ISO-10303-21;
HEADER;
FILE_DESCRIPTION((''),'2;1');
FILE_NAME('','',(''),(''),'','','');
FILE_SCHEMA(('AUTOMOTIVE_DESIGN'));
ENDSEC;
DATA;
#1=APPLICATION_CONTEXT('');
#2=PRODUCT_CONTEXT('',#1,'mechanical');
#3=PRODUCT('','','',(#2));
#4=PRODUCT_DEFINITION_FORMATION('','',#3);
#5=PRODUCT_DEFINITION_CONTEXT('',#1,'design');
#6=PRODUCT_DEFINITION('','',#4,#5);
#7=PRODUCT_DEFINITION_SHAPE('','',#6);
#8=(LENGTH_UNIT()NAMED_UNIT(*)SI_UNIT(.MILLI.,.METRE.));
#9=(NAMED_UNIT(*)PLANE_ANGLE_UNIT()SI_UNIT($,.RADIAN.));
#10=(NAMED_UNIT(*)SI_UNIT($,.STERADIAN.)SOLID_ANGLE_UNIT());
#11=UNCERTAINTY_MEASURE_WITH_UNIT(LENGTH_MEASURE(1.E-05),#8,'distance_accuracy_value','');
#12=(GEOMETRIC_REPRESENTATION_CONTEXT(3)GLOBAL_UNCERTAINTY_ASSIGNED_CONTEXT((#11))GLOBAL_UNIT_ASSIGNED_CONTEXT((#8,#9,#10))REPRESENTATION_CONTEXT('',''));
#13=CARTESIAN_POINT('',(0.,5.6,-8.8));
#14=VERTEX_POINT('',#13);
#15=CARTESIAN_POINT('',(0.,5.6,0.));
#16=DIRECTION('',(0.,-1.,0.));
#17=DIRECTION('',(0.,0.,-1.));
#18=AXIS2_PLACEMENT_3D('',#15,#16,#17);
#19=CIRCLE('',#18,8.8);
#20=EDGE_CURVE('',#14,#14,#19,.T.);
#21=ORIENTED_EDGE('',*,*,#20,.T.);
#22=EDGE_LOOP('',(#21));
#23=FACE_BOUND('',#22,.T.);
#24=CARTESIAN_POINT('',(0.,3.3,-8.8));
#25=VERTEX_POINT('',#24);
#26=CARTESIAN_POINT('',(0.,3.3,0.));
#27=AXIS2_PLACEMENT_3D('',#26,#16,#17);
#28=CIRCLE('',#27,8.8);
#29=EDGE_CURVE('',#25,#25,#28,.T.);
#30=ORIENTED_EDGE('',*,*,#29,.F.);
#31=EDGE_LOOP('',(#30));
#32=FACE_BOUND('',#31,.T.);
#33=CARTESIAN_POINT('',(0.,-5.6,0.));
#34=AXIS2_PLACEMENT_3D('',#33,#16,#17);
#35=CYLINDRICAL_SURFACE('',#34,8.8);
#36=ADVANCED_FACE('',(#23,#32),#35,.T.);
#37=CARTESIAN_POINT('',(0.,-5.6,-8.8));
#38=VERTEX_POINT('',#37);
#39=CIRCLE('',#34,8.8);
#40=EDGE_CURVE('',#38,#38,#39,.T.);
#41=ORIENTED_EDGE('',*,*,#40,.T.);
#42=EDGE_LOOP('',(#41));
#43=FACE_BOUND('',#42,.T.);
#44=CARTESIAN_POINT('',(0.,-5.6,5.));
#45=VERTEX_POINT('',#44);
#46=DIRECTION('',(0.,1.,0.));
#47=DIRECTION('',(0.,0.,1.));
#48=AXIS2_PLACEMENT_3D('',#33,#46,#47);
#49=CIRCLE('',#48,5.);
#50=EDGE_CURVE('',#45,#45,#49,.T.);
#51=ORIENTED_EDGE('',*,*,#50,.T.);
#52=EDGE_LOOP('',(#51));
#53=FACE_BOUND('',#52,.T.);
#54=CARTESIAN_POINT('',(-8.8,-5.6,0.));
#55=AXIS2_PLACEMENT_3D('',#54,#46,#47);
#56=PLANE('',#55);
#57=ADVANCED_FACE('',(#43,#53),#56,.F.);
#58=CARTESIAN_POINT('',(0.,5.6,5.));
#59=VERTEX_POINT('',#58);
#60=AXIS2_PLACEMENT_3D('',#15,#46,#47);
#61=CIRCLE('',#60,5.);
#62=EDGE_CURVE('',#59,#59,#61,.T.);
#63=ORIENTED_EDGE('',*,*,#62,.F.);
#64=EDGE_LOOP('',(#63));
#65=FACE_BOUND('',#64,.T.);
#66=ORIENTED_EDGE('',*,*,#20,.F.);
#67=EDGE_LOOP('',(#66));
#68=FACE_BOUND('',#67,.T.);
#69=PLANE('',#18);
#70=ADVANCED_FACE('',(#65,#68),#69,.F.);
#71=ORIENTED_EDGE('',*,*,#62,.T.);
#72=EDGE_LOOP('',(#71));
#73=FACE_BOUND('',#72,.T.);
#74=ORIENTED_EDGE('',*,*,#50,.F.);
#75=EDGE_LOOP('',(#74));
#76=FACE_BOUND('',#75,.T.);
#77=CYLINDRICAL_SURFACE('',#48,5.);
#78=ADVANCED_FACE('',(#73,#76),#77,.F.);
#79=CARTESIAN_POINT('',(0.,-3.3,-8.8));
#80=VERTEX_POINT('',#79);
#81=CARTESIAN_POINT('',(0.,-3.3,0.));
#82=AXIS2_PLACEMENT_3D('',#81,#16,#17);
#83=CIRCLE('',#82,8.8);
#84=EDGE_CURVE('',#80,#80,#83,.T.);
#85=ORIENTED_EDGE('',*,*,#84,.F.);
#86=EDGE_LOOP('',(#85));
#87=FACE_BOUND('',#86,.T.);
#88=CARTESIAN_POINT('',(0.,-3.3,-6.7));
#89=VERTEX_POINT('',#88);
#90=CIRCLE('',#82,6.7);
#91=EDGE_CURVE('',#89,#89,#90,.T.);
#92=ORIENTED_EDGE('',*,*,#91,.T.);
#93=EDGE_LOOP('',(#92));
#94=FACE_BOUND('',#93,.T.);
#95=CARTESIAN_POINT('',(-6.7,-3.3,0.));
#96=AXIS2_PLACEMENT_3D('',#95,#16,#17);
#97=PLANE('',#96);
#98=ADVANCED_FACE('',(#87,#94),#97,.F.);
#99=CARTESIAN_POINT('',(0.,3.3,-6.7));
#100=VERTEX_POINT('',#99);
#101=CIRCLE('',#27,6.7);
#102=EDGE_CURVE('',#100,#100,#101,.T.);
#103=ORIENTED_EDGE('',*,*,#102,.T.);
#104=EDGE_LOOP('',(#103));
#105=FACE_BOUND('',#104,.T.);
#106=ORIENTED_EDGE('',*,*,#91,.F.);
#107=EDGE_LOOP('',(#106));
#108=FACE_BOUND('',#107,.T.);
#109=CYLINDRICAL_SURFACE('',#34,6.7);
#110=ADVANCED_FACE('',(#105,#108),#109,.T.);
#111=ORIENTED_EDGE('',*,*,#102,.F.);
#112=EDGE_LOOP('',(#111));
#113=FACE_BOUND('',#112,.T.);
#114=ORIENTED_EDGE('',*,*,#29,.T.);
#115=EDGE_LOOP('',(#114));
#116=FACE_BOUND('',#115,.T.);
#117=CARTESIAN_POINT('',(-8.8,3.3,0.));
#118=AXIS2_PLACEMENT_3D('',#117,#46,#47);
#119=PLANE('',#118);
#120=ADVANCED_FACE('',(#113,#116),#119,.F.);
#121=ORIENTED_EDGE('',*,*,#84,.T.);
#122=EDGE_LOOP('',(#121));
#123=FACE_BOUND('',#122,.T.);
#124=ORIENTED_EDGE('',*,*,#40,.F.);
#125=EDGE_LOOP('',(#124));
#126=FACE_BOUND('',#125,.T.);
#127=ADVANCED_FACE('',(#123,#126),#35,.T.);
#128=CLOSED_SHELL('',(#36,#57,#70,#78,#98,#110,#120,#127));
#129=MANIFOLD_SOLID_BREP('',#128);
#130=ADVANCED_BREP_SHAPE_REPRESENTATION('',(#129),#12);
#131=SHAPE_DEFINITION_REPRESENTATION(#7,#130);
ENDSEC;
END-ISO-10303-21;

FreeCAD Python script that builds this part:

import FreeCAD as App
import Part
import Sketcher
from FreeCAD import Vector


def add_polygon(sketch, points):
    """Adds a closed chain of lines whose ends are joined by coincident constraints."""
    first, n = sketch.GeometryCount, len(points)
    for a, b in zip(points, points[1:] + points[:1]):
        sketch.addGeometry(Part.LineSegment(App.Vector(*a, 0), App.Vector(*b, 0)), False)
    for i in range(n):
        sketch.addConstraint(Sketcher.Constraint("Coincident", first + i, 2, first + (i + 1) % n, 1))

doc = App.newDocument("Part")
body = doc.addObject("PartDesign::Body", "Body")

sketch1 = body.newObject("Sketcher::SketchObject", "Sketch")
sketch1.AttachmentSupport = (doc.getObject("XY_Plane"), [""])
sketch1.MapMode = "FlatFace"
add_polygon(sketch1, [(0, 5.6), (-8.8, 5.6), (-8.8, 3.3), (-6.7, 3.3), (-6.7, -3.3), (-8.8, -3.3), (-8.8, -5.6), (0, -5.6)])
sketch1.addConstraint(Sketcher.Constraint("Horizontal", 0))
sketch1.addConstraint(Sketcher.Constraint("Vertical", 1))
sketch1.addConstraint(Sketcher.Constraint("Horizontal", 2))
sketch1.addConstraint(Sketcher.Constraint("Vertical", 3))
sketch1.addConstraint(Sketcher.Constraint("Horizontal", 4))
sketch1.addConstraint(Sketcher.Constraint("Vertical", 5))
sketch1.addConstraint(Sketcher.Constraint("Horizontal", 6))
sketch1.addConstraint(Sketcher.Constraint("Vertical", 7))
sketch1.addConstraint(Sketcher.Constraint("Symmetric", 6, 2, 7, 2, -1, 1))
sketch1.addConstraint(Sketcher.Constraint("Symmetric", 1, 2, 4, 2, -1))
sketch1.addConstraint(Sketcher.Constraint("DistanceX", 0, 2, 0, 1, 8.8))
sketch1.addConstraint(Sketcher.Constraint("DistanceX", 2, 1, 2, 2, 2.1))
sketch1.addConstraint(Sketcher.Constraint("DistanceY", 1, 2, 1, 1, 2.3))
sketch1.addConstraint(Sketcher.Constraint("DistanceY", 3, 2, 3, 1, 6.6))
revolution = body.newObject("PartDesign::Revolution", "Revolution")
revolution.Profile = sketch1
revolution.ReferenceAxis = (sketch1, ["V_Axis"])
revolution.Angle = 360

sketch2 = body.newObject("Sketcher::SketchObject", "Sketch001")
sketch2.AttachmentSupport = (doc.getObject("XZ_Plane"), [""])
sketch2.MapMode = "FlatFace"
sketch2.addGeometry(Part.Circle(Vector(0, 0, 0), Vector(0, 0, 1), 5), False)
sketch2.addConstraint(Sketcher.Constraint("Coincident", 0, 3, -1, 1))
sketch2.addConstraint(Sketcher.Constraint("Diameter", 0, 10.0))
pocket1 = body.newObject("PartDesign::Pocket", "Pocket")
pocket1.Profile = sketch2
pocket1.Type = "ThroughAll"
pocket1.Midplane = True

doc.recompute()
